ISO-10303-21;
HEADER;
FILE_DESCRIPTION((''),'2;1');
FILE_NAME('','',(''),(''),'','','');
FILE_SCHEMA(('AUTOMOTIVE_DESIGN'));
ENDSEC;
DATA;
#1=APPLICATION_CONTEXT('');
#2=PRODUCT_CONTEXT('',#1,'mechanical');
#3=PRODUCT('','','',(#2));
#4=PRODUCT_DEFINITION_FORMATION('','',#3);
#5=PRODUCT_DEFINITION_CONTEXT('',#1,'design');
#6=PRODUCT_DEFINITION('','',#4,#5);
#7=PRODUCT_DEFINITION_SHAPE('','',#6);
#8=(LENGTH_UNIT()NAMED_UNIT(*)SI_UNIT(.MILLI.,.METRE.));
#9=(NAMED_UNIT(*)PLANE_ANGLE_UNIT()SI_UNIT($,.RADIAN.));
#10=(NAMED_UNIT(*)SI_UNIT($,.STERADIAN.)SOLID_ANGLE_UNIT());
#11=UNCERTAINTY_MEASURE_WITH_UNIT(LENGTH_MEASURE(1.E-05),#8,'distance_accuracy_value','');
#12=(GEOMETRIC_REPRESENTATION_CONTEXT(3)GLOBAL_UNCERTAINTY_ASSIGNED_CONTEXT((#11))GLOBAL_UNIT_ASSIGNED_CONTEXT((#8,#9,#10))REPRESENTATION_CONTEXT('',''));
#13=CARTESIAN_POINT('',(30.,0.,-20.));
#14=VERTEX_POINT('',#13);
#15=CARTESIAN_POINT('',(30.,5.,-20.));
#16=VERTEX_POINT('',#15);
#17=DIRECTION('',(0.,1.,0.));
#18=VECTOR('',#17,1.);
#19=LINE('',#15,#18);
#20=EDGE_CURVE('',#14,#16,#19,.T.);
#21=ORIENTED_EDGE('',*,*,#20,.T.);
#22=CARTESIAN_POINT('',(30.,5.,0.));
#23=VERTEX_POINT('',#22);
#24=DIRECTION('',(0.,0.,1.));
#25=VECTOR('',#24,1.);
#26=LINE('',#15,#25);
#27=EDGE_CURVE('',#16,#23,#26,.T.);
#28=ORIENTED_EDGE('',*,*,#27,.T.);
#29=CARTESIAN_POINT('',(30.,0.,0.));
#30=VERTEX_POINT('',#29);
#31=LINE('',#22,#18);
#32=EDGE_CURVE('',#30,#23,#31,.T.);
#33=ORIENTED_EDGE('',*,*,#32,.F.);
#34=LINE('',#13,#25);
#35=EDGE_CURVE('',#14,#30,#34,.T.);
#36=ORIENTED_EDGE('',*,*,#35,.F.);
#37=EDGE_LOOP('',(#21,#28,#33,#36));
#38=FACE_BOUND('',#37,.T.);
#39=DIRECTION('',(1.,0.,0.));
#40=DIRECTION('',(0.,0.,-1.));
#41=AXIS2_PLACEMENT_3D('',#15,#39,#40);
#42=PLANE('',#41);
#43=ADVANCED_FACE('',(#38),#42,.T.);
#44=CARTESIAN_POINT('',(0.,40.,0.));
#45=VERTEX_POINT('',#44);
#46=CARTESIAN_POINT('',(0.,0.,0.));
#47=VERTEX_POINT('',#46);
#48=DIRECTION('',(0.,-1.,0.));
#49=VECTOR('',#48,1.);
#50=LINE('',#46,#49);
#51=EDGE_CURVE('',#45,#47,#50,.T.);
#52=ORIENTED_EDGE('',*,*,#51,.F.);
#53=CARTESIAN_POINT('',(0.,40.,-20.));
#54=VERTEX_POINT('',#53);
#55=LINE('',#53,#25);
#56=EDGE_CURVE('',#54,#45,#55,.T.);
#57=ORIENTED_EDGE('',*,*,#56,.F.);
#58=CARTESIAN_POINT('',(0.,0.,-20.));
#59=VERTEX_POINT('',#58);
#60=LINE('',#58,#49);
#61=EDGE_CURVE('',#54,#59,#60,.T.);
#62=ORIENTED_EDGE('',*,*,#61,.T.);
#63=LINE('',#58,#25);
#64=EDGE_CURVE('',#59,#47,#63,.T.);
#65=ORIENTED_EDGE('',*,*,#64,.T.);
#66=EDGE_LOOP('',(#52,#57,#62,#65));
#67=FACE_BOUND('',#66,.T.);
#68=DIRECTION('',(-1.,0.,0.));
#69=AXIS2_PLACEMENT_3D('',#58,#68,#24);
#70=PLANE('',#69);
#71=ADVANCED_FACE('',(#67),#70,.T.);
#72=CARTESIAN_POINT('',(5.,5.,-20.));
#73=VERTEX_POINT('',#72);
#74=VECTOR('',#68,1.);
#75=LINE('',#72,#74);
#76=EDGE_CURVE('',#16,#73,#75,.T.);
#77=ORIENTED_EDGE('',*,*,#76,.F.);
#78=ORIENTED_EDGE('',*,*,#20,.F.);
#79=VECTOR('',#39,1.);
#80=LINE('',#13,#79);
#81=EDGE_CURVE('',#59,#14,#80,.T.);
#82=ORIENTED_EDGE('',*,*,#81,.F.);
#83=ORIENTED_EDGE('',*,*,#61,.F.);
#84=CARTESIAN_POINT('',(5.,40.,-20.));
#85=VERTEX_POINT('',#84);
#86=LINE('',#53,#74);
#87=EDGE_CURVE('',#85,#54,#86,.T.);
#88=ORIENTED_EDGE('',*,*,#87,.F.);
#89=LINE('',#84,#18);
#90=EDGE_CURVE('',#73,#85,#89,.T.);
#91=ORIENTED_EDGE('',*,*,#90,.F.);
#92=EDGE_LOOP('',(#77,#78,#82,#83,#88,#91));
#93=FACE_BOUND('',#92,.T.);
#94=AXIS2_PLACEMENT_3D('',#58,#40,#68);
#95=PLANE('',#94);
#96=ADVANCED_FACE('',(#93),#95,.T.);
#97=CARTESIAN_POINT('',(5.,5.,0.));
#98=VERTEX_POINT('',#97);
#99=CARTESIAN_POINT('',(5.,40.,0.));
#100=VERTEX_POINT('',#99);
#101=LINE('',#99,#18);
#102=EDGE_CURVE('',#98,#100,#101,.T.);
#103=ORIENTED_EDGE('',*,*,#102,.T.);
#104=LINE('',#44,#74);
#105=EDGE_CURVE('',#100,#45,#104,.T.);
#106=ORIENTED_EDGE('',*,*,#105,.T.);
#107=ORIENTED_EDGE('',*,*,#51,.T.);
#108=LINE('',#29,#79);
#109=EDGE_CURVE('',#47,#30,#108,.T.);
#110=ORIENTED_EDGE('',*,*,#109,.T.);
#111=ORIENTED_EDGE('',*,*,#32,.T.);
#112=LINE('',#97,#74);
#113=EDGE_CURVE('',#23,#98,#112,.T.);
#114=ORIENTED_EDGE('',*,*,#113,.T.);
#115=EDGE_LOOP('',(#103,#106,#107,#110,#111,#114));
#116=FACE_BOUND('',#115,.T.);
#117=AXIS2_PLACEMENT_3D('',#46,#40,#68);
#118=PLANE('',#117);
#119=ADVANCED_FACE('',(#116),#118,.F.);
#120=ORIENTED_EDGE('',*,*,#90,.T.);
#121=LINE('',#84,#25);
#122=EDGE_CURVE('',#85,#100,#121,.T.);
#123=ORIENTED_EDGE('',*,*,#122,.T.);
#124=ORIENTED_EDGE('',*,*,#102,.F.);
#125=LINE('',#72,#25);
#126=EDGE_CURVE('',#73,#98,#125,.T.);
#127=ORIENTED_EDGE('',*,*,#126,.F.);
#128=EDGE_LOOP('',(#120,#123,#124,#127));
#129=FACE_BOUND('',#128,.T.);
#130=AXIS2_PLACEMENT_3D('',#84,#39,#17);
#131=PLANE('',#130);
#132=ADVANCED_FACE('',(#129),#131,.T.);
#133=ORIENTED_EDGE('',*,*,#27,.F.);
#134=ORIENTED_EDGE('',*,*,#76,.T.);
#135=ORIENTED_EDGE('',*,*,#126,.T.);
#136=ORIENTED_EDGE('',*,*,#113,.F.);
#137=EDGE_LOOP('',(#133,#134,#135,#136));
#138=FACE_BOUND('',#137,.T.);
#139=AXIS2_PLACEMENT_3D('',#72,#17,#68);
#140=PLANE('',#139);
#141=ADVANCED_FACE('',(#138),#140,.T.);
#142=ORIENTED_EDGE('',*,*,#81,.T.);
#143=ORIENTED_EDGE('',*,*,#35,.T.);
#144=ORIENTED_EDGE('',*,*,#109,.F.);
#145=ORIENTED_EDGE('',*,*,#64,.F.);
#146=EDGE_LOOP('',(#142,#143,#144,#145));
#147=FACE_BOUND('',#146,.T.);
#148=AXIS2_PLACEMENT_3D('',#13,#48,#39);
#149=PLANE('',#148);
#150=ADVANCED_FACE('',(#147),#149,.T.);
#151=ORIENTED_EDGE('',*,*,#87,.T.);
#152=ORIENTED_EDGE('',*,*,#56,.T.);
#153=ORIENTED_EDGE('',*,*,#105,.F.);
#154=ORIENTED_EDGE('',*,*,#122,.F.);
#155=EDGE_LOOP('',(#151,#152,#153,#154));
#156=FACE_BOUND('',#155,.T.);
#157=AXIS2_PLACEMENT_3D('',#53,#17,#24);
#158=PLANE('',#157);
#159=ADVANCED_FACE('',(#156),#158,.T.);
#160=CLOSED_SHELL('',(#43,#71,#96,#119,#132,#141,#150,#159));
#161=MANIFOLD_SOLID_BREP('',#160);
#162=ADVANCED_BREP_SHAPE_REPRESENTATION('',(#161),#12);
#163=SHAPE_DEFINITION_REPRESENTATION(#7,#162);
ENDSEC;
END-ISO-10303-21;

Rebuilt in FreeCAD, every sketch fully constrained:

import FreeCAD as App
import Part
import Sketcher
from FreeCAD import Vector

doc = App.newDocument("Part")
body = doc.addObject("PartDesign::Body", "Body")

# Sketch on XY plane
sketch1 = body.newObject("Sketcher::SketchObject", "Sketch")
sketch1.AttachmentSupport = (doc.getObject("XY_Plane"), [""])
sketch1.MapMode = "FlatFace"
sketch1.addGeometry([
    Part.LineSegment(Vector(0, 40, 0), Vector(0, 0, 0)),  # 0
    Part.LineSegment(Vector(0, 0, 0), Vector(30, 0, 0)),  # 1
    Part.LineSegment(Vector(30, 0, 0), Vector(30, 5, 0)),  # 2
    Part.LineSegment(Vector(30, 5, 0), Vector(5, 5, 0)),  # 3
    Part.LineSegment(Vector(5, 5, 0), Vector(5, 40, 0)),  # 4
    Part.LineSegment(Vector(5, 40, 0), Vector(0, 40, 0)),  # 5
], False)
sketch1.addConstraint([
    Sketcher.Constraint("Coincident", 0, 2, 1, 1),
    Sketcher.Constraint("Coincident", 1, 2, 2, 1),
    Sketcher.Constraint("Coincident", 2, 2, 3, 1),
    Sketcher.Constraint("Coincident", 3, 2, 4, 1),
    Sketcher.Constraint("Coincident", 4, 2, 5, 1),
    Sketcher.Constraint("Coincident", 5, 2, 0, 1),
    Sketcher.Constraint("Vertical", 0),
    Sketcher.Constraint("Horizontal", 1),
    Sketcher.Constraint("Vertical", 2),
    Sketcher.Constraint("Horizontal", 3),
    Sketcher.Constraint("Vertical", 4),
    Sketcher.Constraint("Horizontal", 5),
    Sketcher.Constraint("Coincident", 0, 2, -1, 1),
    Sketcher.Constraint("Equal", 5, 2),
    Sketcher.Constraint("DistanceX", 1, 1, 1, 2, 30.0),
    Sketcher.Constraint("DistanceX", 3, 2, 3, 1, 25.0),
    Sketcher.Constraint("DistanceY", 0, 2, 0, 1, 40.0),
])
pad1 = body.newObject("PartDesign::Pad", "Pad")
pad1.Profile = sketch1
pad1.Length = 20
pad1.Reversed = True

doc.recompute()
